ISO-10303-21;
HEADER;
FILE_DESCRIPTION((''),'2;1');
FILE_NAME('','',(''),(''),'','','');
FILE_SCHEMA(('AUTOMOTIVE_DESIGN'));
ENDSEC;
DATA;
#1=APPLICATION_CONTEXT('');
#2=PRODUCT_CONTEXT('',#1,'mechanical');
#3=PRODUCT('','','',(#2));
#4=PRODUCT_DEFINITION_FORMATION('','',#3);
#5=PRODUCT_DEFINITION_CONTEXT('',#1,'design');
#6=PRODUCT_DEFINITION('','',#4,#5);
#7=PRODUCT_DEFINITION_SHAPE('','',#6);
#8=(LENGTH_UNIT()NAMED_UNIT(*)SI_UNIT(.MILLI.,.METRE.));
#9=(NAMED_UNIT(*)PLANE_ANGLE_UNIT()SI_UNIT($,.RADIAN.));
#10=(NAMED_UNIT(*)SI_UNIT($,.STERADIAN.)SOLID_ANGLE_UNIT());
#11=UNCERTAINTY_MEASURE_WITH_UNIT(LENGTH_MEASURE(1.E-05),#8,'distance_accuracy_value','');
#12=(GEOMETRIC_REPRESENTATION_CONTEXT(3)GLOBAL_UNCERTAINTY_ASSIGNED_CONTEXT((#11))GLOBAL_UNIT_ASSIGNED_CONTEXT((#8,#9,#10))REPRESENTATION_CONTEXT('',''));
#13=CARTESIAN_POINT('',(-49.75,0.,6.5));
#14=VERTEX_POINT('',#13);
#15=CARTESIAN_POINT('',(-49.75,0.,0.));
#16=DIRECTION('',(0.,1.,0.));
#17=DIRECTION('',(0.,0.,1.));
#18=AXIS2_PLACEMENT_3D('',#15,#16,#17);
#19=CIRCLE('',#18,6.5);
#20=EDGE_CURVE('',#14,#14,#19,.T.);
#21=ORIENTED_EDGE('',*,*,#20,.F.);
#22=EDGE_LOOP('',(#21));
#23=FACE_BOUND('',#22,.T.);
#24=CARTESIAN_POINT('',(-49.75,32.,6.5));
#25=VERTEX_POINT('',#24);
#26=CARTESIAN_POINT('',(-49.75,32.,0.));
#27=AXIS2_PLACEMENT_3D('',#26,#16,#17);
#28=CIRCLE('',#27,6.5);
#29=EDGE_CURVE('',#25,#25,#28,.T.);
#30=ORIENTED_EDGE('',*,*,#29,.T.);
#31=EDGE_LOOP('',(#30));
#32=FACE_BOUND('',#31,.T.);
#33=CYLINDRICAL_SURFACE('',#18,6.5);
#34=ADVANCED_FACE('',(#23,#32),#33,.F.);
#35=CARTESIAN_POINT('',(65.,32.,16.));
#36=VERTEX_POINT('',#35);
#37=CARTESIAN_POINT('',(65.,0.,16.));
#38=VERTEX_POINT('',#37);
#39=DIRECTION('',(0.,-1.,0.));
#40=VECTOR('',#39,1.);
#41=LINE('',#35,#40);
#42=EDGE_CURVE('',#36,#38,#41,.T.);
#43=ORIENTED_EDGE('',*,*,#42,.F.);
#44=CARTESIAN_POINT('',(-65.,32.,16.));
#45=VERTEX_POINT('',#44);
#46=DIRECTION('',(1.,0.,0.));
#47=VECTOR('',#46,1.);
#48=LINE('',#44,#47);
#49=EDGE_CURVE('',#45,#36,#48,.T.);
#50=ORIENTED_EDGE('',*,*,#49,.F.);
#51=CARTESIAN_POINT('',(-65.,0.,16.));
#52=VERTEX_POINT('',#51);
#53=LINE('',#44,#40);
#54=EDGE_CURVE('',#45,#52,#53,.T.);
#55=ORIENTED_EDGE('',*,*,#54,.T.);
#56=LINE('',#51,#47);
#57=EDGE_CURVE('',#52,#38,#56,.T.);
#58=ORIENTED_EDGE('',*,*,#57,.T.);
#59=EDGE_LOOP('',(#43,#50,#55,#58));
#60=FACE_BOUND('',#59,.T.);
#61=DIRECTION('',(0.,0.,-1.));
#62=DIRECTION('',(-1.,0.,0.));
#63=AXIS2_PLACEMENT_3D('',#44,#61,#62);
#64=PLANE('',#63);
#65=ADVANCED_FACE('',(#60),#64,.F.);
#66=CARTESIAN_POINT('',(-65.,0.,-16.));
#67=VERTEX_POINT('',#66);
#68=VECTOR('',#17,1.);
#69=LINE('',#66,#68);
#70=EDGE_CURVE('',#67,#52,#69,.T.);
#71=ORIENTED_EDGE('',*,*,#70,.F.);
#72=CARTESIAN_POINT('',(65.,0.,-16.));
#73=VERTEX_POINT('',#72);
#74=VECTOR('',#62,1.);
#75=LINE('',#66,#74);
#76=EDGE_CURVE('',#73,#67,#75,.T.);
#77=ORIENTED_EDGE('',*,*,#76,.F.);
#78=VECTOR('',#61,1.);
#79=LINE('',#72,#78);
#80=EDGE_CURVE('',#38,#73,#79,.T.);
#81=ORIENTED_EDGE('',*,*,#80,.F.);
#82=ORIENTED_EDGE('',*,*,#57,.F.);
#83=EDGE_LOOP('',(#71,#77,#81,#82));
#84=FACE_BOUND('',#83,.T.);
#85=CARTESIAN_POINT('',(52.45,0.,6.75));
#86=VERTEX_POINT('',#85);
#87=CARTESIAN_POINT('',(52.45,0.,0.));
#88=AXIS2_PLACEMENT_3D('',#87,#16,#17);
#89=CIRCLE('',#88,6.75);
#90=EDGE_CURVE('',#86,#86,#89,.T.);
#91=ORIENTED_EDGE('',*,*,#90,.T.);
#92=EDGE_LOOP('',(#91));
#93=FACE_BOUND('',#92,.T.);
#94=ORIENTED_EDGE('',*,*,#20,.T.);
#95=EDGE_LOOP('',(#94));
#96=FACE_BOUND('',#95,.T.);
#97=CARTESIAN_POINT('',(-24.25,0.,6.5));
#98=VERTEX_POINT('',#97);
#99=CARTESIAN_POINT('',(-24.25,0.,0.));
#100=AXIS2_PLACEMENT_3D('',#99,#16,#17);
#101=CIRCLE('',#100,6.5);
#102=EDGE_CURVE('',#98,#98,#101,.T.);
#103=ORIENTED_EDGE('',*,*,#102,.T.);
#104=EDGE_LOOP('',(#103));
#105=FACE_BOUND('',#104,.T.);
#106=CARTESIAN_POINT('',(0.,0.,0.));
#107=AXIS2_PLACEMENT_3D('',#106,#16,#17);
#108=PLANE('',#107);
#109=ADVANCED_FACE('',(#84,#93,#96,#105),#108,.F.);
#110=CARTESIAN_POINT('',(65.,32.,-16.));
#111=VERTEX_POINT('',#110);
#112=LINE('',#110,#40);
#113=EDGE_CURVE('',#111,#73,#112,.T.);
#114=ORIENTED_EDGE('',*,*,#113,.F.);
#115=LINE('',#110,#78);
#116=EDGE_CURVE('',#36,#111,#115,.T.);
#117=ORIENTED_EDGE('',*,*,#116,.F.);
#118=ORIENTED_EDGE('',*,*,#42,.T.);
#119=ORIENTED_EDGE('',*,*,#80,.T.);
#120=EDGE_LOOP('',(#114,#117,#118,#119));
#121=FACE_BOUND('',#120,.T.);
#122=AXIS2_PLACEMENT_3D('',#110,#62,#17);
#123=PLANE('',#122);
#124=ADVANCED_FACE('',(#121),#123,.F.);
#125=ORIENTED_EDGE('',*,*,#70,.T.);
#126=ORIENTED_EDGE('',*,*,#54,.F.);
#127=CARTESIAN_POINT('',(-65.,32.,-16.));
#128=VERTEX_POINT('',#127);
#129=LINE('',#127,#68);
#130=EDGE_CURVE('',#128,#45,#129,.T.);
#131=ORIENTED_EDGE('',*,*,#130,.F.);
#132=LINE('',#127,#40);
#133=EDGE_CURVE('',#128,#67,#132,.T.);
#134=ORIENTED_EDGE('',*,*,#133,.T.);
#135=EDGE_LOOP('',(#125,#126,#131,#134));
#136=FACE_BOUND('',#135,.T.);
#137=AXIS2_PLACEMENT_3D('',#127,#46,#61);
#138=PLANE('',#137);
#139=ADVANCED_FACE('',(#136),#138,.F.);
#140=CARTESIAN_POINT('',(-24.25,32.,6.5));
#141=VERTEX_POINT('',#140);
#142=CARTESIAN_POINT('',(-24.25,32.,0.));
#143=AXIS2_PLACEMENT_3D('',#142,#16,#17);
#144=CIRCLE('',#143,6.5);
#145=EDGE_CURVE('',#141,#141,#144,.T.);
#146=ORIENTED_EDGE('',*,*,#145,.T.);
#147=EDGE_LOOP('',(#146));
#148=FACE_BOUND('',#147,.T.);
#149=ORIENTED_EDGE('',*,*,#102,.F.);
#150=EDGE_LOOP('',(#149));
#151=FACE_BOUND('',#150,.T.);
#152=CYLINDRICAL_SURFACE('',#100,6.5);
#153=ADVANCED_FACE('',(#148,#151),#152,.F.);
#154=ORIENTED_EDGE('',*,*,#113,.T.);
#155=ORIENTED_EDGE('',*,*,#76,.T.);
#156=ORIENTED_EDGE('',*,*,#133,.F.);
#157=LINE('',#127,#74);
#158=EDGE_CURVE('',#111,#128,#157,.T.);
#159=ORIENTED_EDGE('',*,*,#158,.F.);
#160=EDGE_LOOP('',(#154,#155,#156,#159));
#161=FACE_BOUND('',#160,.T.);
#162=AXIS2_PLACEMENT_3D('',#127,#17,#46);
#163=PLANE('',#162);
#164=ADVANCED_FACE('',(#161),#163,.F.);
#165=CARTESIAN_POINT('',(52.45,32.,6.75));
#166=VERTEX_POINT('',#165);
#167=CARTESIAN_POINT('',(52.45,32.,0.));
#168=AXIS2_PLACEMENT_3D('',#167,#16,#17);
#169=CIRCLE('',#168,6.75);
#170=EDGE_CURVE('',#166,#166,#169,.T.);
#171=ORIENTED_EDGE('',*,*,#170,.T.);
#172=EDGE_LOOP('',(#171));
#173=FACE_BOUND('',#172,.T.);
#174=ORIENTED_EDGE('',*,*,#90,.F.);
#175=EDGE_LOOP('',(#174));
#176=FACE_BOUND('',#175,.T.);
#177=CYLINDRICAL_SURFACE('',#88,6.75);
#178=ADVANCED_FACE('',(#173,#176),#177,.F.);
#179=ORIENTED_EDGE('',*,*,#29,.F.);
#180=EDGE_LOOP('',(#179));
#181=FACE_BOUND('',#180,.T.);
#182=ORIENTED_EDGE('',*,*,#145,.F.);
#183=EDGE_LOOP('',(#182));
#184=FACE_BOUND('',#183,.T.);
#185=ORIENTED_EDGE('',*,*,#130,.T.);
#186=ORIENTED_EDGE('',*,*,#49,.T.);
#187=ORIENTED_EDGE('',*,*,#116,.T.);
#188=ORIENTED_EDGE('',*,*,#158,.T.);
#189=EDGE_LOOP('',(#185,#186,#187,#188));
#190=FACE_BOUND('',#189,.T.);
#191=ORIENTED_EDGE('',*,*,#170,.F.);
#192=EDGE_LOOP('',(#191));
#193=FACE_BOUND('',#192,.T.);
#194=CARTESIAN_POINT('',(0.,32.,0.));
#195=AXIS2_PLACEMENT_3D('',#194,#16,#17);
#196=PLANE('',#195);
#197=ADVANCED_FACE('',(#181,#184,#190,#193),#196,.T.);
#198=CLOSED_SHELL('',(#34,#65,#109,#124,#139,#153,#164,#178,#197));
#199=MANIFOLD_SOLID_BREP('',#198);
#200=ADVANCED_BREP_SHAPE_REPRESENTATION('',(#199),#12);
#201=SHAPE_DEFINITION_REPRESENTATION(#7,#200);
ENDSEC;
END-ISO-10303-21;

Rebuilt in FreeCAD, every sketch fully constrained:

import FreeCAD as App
import Part
import Sketcher
Q = App.Units.Quantity


def add_polygon(sketch, points):
    """Adds a closed chain of lines whose ends are joined by coincident constraints."""
    first, n = sketch.GeometryCount, len(points)
    for a, b in zip(points, points[1:] + points[:1]):
        sketch.addGeometry(Part.LineSegment(App.Vector(*a, 0), App.Vector(*b, 0)), False)
    for i in range(n):
        sketch.addConstraint(Sketcher.Constraint("Coincident", first + i, 2, first + (i + 1) % n, 1))

doc = App.newDocument("Part")
body = doc.addObject("PartDesign::Body", "Body")

# Sketch on XZ plane
sketch1 = doc.addObject("Sketcher::SketchObject", "Sketch")
body.addObject(sketch1)
sketch1.AttachmentSupport = (doc.XZ_Plane, [""])
sketch1.MapMode = "FlatFace"
add_polygon(sketch1, [(-65, -16), (-65, 16), (65, 16), (65, -16)])  # lines 0-3
sketch1.addConstraint([
    Sketcher.Constraint("Vertical", 0),
    Sketcher.Constraint("Horizontal", 1),
    Sketcher.Constraint("Vertical", 2),
    Sketcher.Constraint("Horizontal", 3),
    Sketcher.Constraint("Symmetric", 0, 2, 2, 2, -1, 1),
    Sketcher.Constraint("DistanceX", 1, 1, 1, 2, Q("130 mm")),
    Sketcher.Constraint("DistanceY", 0, 1, 0, 2, Q("32 mm")),
])
pad1 = doc.addObject("PartDesign::Pad", "Pad")
body.addObject(pad1)
pad1.Profile = sketch1
pad1.Length = 32
pad1.Reversed = True

# Sketch on XZ plane
sketch2 = doc.addObject("Sketcher::SketchObject", "Sketch001")
body.addObject(sketch2)
sketch2.AttachmentSupport = (doc.XZ_Plane, [""])
sketch2.MapMode = "FlatFace"
sketch2.AttachmentOffset = App.Placement(App.Vector(0, 0, -32), App.Rotation())
sketch2.addGeometry([
    Part.Circle(App.Vector(-50, 0, 0), App.Vector(0, 0, 1), 6),
    Part.Circle(App.Vector(-24, 0, 0), App.Vector(0, 0, 1), 6),
    Part.Circle(App.Vector(52, 0, 0), App.Vector(0, 0, 1), 7),
], False)
sketch2.addConstraint([
    Sketcher.Constraint("Equal", 0, 1),
    Sketcher.Constraint("PointOnObject", 0, 3, -1),
    Sketcher.Constraint("PointOnObject", 1, 3, -1),
    Sketcher.Constraint("PointOnObject", 2, 3, -1),
    Sketcher.Constraint("Diameter", 0, Q("13 mm")),
    Sketcher.Constraint("Diameter", 2, Q("13.5 mm")),
    Sketcher.Constraint("DistanceX", 0, 3, 1, 3, Q("25.5 mm")),
    Sketcher.Constraint("DistanceX", 1, 3, 2, 3, Q("76.7 mm")),
    Sketcher.Constraint("DistanceX", 0, 3, -1, 1, Q("49.75 mm")),
])
pocket1 = doc.addObject("PartDesign::Pocket", "Pocket")
body.addObject(pocket1)
pocket1.Profile = sketch2
pocket1.Length = 32
pocket1.Reversed = True

doc.recompute()
